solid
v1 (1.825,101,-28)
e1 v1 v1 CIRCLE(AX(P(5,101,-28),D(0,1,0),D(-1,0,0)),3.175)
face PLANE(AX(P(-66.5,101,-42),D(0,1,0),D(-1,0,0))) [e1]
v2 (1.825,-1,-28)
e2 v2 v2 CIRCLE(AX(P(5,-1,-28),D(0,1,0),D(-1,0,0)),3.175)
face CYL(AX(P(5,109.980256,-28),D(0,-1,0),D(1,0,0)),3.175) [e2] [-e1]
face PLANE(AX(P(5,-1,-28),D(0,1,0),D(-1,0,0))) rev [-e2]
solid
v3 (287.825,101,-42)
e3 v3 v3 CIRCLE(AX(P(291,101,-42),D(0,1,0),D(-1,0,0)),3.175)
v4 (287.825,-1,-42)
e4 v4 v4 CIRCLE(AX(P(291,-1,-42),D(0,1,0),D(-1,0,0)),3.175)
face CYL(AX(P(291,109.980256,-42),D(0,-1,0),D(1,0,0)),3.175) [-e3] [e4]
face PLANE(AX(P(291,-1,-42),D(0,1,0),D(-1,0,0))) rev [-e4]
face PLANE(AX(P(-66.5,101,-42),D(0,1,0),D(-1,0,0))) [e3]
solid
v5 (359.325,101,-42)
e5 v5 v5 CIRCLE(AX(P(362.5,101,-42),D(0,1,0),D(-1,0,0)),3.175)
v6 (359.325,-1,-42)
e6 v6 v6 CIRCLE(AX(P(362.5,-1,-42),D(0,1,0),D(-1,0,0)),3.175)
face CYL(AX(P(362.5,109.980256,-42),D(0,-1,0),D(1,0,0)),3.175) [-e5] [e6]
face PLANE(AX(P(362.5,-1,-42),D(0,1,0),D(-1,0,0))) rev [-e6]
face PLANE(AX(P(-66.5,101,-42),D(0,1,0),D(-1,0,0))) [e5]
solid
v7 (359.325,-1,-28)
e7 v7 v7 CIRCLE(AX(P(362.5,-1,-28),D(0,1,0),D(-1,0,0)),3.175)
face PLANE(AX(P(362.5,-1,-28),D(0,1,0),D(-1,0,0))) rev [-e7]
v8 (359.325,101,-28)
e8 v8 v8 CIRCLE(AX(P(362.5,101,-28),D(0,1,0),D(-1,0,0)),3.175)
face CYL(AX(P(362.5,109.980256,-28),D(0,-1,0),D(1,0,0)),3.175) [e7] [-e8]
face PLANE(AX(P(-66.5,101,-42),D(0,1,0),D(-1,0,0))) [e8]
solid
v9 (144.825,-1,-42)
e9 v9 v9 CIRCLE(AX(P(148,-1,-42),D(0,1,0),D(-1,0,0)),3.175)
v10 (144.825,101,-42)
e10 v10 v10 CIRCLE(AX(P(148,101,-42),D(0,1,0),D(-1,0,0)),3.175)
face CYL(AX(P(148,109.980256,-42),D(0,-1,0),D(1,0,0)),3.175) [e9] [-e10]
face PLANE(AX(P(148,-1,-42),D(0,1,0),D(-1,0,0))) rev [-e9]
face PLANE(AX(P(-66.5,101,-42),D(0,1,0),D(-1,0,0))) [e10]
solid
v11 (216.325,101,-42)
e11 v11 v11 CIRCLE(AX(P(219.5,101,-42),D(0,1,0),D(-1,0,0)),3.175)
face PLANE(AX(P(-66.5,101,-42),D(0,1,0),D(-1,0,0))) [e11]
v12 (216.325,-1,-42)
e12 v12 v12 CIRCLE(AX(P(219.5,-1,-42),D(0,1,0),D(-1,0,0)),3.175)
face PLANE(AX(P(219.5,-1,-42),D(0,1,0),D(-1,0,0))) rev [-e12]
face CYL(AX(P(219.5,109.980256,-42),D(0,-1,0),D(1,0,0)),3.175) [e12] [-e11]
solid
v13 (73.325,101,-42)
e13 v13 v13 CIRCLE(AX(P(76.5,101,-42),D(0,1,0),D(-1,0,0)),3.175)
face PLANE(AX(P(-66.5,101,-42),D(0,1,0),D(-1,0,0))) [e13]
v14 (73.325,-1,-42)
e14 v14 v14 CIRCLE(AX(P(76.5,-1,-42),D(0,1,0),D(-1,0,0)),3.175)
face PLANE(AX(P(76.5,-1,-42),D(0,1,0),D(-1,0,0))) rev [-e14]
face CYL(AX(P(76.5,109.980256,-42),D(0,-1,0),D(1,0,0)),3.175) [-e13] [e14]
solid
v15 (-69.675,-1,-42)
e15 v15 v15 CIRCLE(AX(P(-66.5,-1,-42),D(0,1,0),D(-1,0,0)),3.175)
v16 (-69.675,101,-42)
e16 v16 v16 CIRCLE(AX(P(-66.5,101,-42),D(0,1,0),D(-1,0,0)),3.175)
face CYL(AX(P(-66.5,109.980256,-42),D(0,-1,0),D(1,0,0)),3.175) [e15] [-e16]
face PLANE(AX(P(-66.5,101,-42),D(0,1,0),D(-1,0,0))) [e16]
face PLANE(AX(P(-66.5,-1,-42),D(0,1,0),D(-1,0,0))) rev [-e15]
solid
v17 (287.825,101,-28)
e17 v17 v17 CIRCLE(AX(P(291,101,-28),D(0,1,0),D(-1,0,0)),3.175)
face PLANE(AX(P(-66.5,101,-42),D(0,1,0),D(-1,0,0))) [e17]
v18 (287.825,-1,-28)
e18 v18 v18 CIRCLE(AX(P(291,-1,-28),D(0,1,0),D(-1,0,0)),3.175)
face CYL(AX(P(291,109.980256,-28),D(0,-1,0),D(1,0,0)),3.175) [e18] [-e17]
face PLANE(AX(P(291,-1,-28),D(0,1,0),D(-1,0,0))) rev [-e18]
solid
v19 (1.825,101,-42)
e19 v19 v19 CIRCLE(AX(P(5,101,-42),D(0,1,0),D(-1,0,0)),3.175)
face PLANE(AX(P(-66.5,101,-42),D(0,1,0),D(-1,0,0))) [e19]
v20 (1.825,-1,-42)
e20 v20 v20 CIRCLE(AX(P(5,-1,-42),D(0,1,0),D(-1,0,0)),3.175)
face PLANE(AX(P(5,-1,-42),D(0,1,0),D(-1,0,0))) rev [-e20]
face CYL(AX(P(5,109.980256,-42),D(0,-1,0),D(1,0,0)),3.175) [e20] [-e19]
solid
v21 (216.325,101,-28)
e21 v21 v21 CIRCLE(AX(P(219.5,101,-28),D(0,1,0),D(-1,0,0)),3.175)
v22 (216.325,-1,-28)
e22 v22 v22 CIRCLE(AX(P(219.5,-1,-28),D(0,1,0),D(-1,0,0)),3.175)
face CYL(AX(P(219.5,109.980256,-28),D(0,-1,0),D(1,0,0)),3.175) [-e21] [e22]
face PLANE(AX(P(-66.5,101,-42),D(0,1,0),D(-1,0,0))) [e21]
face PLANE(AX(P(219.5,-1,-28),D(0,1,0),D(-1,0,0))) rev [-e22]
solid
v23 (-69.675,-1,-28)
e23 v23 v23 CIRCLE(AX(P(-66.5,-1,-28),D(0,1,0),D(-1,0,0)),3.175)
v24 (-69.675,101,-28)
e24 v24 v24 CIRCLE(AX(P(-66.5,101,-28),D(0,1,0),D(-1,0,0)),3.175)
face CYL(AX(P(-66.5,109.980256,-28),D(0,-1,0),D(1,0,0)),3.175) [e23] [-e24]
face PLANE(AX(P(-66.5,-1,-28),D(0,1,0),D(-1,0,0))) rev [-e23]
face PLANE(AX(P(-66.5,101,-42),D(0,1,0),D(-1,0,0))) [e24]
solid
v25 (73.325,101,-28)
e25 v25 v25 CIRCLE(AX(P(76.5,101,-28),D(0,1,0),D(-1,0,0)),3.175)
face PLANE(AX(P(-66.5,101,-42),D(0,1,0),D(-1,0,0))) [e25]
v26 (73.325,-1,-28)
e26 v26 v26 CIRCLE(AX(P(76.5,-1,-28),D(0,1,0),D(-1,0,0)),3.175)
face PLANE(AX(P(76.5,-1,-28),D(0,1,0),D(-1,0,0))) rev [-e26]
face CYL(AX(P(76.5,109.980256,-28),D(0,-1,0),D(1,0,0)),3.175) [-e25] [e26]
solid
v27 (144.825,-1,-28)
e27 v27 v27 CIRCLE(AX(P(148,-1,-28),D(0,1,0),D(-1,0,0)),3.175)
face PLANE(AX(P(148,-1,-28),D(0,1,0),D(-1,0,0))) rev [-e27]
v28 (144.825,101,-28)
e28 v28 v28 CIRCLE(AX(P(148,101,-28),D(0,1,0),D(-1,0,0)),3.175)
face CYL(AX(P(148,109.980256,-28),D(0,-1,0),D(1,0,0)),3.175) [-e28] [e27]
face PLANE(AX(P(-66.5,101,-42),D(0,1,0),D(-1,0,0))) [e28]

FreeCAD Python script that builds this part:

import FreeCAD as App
import Part
import Sketcher
from FreeCAD import Vector
Q = App.Units.Quantity

doc = App.newDocument("Part")
body = doc.addObject("PartDesign::Body", "Body")

# Sketch on XZ plane
sketch1 = doc.addObject("Sketcher::SketchObject", "Sketch")
body.addObject(sketch1)
sketch1.AttachmentSupport = (doc.XZ_Plane, [""])
sketch1.MapMode = "FlatFace"
sketch1.AttachmentOffset = App.Placement(Vector(0, 0, 1), App.Rotation())
sketch1.addGeometry(Part.Circle(Vector(-66.5, -42, 0), Vector(0, 0, 1), 3.175), False)
sketch1.addConstraint(Sketcher.Constraint("Diameter", 0, Q("6.35 mm")))
sketch1.addConstraint(Sketcher.Constraint("DistanceY", 0, 3, -1, 1, Q("42 mm")))
sketch1.addConstraint(Sketcher.Constraint("DistanceX", 0, 3, -1, 1, Q("66.5 mm")))
pad1 = doc.addObject("PartDesign::Pad", "Pad")
body.addObject(pad1)
pad1.Profile = sketch1
pad1.Length = 102
pad1.Reversed = True
body2 = doc.addObject("PartDesign::Body", "Body001")

# Sketch on XZ plane
sketch2 = doc.addObject("Sketcher::SketchObject", "Sketch001")
body2.addObject(sketch2)
sketch2.AttachmentSupport = (doc.getObject("XZ_Plane001"), [""])
sketch2.MapMode = "FlatFace"
sketch2.AttachmentOffset = App.Placement(Vector(0, 0, 1), App.Rotation())
sketch2.addGeometry(Part.Circle(Vector(-66.5, -28, 0), Vector(0, 0, 1), 3.175), False)
sketch2.addConstraint(Sketcher.Constraint("Diameter", 0, Q("6.35 mm")))
sketch2.addConstraint(Sketcher.Constraint("DistanceY", 0, 3, -1, 1, Q("28 mm")))
sketch2.addConstraint(Sketcher.Constraint("DistanceX", 0, 3, -1, 1, Q("66.5 mm")))
pad2 = doc.addObject("PartDesign::Pad", "Pad001")
body2.addObject(pad2)
pad2.Profile = sketch2
pad2.Length = 102
pad2.Reversed = True
body3 = doc.addObject("PartDesign::Body", "Body002")

# Sketch on XZ plane
sketch3 = doc.addObject("Sketcher::SketchObject", "Sketch002")
body3.addObject(sketch3)
sketch3.AttachmentSupport = (doc.getObject("XZ_Plane002"), [""])
sketch3.MapMode = "FlatFace"
sketch3.AttachmentOffset = App.Placement(Vector(0, 0, 1), App.Rotation())
sketch3.addGeometry(Part.Circle(Vector(5, -42, 0), Vector(0, 0, 1), 3.175), False)
sketch3.addConstraint(Sketcher.Constraint("Diameter", 0, Q("6.35 mm")))
sketch3.addConstraint(Sketcher.Constraint("DistanceX", -1, 1, 0, 3, Q("5 mm")))
sketch3.addConstraint(Sketcher.Constraint("DistanceY", 0, 3, -1, 1, Q("42 mm")))
pad3 = doc.addObject("PartDesign::Pad", "Pad002")
body3.addObject(pad3)
pad3.Profile = sketch3
pad3.Length = 102
pad3.Reversed = True
body4 = doc.addObject("PartDesign::Body", "Body003")

# Sketch on XZ plane
sketch4 = doc.addObject("Sketcher::SketchObject", "Sketch003")
body4.addObject(sketch4)
sketch4.AttachmentSupport = (doc.getObject("XZ_Plane003"), [""])
sketch4.MapMode = "FlatFace"
sketch4.AttachmentOffset = App.Placement(Vector(0, 0, 1), App.Rotation())
sketch4.addGeometry(Part.Circle(Vector(5, -28, 0), Vector(0, 0, 1), 3.175), False)
sketch4.addConstraint(Sketcher.Constraint("Diameter", 0, Q("6.35 mm")))
sketch4.addConstraint(Sketcher.Constraint("DistanceX", -1, 1, 0, 3, Q("5 mm")))
sketch4.addConstraint(Sketcher.Constraint("DistanceY", 0, 3, -1, 1, Q("28 mm")))
pad4 = doc.addObject("PartDesign::Pad", "Pad003")
body4.addObject(pad4)
pad4.Profile = sketch4
pad4.Length = 102
pad4.Reversed = True
body5 = doc.addObject("PartDesign::Body", "Body004")

# Sketch on XZ plane
sketch5 = doc.addObject("Sketcher::SketchObject", "Sketch004")
body5.addObject(sketch5)
sketch5.AttachmentSupport = (doc.getObject("XZ_Plane004"), [""])
sketch5.MapMode = "FlatFace"
sketch5.AttachmentOffset = App.Placement(Vector(0, 0, 1), App.Rotation())
sketch5.addGeometry(Part.Circle(Vector(76.5, -42, 0), Vector(0, 0, 1), 3.175), False)
sketch5.addConstraint(Sketcher.Constraint("Diameter", 0, Q("6.35 mm")))
sketch5.addConstraint(Sketcher.Constraint("DistanceY", 0, 3, -1, 1, Q("42 mm")))
sketch5.addConstraint(Sketcher.Constraint("DistanceX", -1, 1, 0, 3, Q("76.5 mm")))
pad5 = doc.addObject("PartDesign::Pad", "Pad004")
body5.addObject(pad5)
pad5.Profile = sketch5
pad5.Length = 102
pad5.Reversed = True
body6 = doc.addObject("PartDesign::Body", "Body005")

# Sketch on XZ plane
sketch6 = doc.addObject("Sketcher::SketchObject", "Sketch005")
body6.addObject(sketch6)
sketch6.AttachmentSupport = (doc.getObject("XZ_Plane005"), [""])
sketch6.MapMode = "FlatFace"
sketch6.AttachmentOffset = App.Placement(Vector(0, 0, 1), App.Rotation())
sketch6.addGeometry(Part.Circle(Vector(76.5, -28, 0), Vector(0, 0, 1), 3.175), False)
sketch6.addConstraint(Sketcher.Constraint("Diameter", 0, Q("6.35 mm")))
sketch6.addConstraint(Sketcher.Constraint("DistanceY", 0, 3, -1, 1, Q("28 mm")))
sketch6.addConstraint(Sketcher.Constraint("DistanceX", -1, 1, 0, 3, Q("76.5 mm")))
pad6 = doc.addObject("PartDesign::Pad", "Pad005")
body6.addObject(pad6)
pad6.Profile = sketch6
pad6.Length = 102
pad6.Reversed = True
body7 = doc.addObject("PartDesign::Body", "Body006")

# Sketch on XZ plane
sketch7 = doc.addObject("Sketcher::SketchObject", "Sketch006")
body7.addObject(sketch7)
sketch7.AttachmentSupport = (doc.getObject("XZ_Plane006"), [""])
sketch7.MapMode = "FlatFace"
sketch7.AttachmentOffset = App.Placement(Vector(0, 0, 1), App.Rotation())
sketch7.addGeometry(Part.Circle(Vector(148, -42, 0), Vector(0, 0, 1), 3.175), False)
sketch7.addConstraint(Sketcher.Constraint("Diameter", 0, Q("6.35 mm")))
sketch7.addConstraint(Sketcher.Constraint("DistanceX", -1, 1, 0, 3, Q("148 mm")))
sketch7.addConstraint(Sketcher.Constraint("DistanceY", 0, 3, -1, 1, Q("42 mm")))
pad7 = doc.addObject("PartDesign::Pad", "Pad006")
body7.addObject(pad7)
pad7.Profile = sketch7
pad7.Length = 102
pad7.Reversed = True
body8 = doc.addObject("PartDesign::Body", "Body007")

# Sketch on XZ plane
sketch8 = doc.addObject("Sketcher::SketchObject", "Sketch007")
body8.addObject(sketch8)
sketch8.AttachmentSupport = (doc.getObject("XZ_Plane007"), [""])
sketch8.MapMode = "FlatFace"
sketch8.AttachmentOffset = App.Placement(Vector(0, 0, 1), App.Rotation())
sketch8.addGeometry(Part.Circle(Vector(148, -28, 0), Vector(0, 0, 1), 3.175), False)
sketch8.addConstraint(Sketcher.Constraint("Diameter", 0, Q("6.35 mm")))
sketch8.addConstraint(Sketcher.Constraint("DistanceX", -1, 1, 0, 3, Q("148 mm")))
sketch8.addConstraint(Sketcher.Constraint("DistanceY", 0, 3, -1, 1, Q("28 mm")))
pad8 = doc.addObject("PartDesign::Pad", "Pad007")
body8.addObject(pad8)
pad8.Profile = sketch8
pad8.Length = 102
pad8.Reversed = True
body9 = doc.addObject("PartDesign::Body", "Body008")

# Sketch on XZ plane
sketch9 = doc.addObject("Sketcher::SketchObject", "Sketch008")
body9.addObject(sketch9)
sketch9.AttachmentSupport = (doc.getObject("XZ_Plane008"), [""])
sketch9.MapMode = "FlatFace"
sketch9.AttachmentOffset = App.Placement(Vector(0, 0, 1), App.Rotation())
sketch9.addGeometry(Part.Circle(Vector(219.5, -42, 0), Vector(0, 0, 1), 3.175), False)
sketch9.addConstraint(Sketcher.Constraint("Diameter", 0, Q("6.35 mm")))
sketch9.addConstraint(Sketcher.Constraint("DistanceY", 0, 3, -1, 1, Q("42 mm")))
sketch9.addConstraint(Sketcher.Constraint("DistanceX", -1, 1, 0, 3, Q("219.5 mm")))
pad9 = doc.addObject("PartDesign::Pad", "Pad008")
body9.addObject(pad9)
pad9.Profile = sketch9
pad9.Length = 102
pad9.Reversed = True
body10 = doc.addObject("PartDesign::Body", "Body009")

# Sketch on XZ plane
sketch10 = doc.addObject("Sketcher::SketchObject", "Sketch009")
body10.addObject(sketch10)
sketch10.AttachmentSupport = (doc.getObject("XZ_Plane009"), [""])
sketch10.MapMode = "FlatFace"
sketch10.AttachmentOffset = App.Placement(Vector(0, 0, 1), App.Rotation())
sketch10.addGeometry(Part.Circle(Vector(219.5, -28, 0), Vector(0, 0, 1), 3.175), False)
sketch10.addConstraint(Sketcher.Constraint("Diameter", 0, Q("6.35 mm")))
sketch10.addConstraint(Sketcher.Constraint("DistanceY", 0, 3, -1, 1, Q("28 mm")))
sketch10.addConstraint(Sketcher.Constraint("DistanceX", -1, 1, 0, 3, Q("219.5 mm")))
pad10 = doc.addObject("PartDesign::Pad", "Pad009")
body10.addObject(pad10)
pad10.Profile = sketch10
pad10.Length = 102
pad10.Reversed = True
body11 = doc.addObject("PartDesign::Body", "Body010")

# Sketch on XZ plane
sketch11 = doc.addObject("Sketcher::SketchObject", "Sketch010")
body11.addObject(sketch11)
sketch11.AttachmentSupport = (doc.getObject("XZ_Plane010"), [""])
sketch11.MapMode = "FlatFace"
sketch11.AttachmentOffset = App.Placement(Vector(0, 0, 1), App.Rotation())
sketch11.addGeometry(Part.Circle(Vector(291, -42, 0), Vector(0, 0, 1), 3.175), False)
sketch11.addConstraint(Sketcher.Constraint("Diameter", 0, Q("6.35 mm")))
sketch11.addConstraint(Sketcher.Constraint("DistanceX", -1, 1, 0, 3, Q("291 mm")))
sketch11.addConstraint(Sketcher.Constraint("DistanceY", 0, 3, -1, 1, Q("42 mm")))
pad11 = doc.addObject("PartDesign::Pad", "Pad010")
body11.addObject(pad11)
pad11.Profile = sketch11
pad11.Length = 102
pad11.Reversed = True
body12 = doc.addObject("PartDesign::Body", "Body011")

# Sketch on XZ plane
sketch12 = doc.addObject("Sketcher::SketchObject", "Sketch011")
body12.addObject(sketch12)
sketch12.AttachmentSupport = (doc.getObject("XZ_Plane011"), [""])
sketch12.MapMode = "FlatFace"
sketch12.AttachmentOffset = App.Placement(Vector(0, 0, 1), App.Rotation())
sketch12.addGeometry(Part.Circle(Vector(291, -28, 0), Vector(0, 0, 1), 3.175), False)
sketch12.addConstraint(Sketcher.Constraint("Diameter", 0, Q("6.35 mm")))
sketch12.addConstraint(Sketcher.Constraint("DistanceX", -1, 1, 0, 3, Q("291 mm")))
sketch12.addConstraint(Sketcher.Constraint("DistanceY", 0, 3, -1, 1, Q("28 mm")))
pad12 = doc.addObject("PartDesign::Pad", "Pad011")
body12.addObject(pad12)
pad12.Profile = sketch12
pad12.Length = 102
pad12.Reversed = True
body13 = doc.addObject("PartDesign::Body", "Body012")

# Sketch on XZ plane
sketch13 = doc.addObject("Sketcher::SketchObject", "Sketch012")
body13.addObject(sketch13)
sketch13.AttachmentSupport = (doc.getObject("XZ_Plane012"), [""])
sketch13.MapMode = "FlatFace"
sketch13.AttachmentOffset = App.Placement(Vector(0, 0, 1), App.Rotation())
sketch13.addGeometry(Part.Circle(Vector(362.5, -42, 0), Vector(0, 0, 1), 3.175), False)
sketch13.addConstraint(Sketcher.Constraint("Diameter", 0, Q("6.35 mm")))
sketch13.addConstraint(Sketcher.Constraint("DistanceY", 0, 3, -1, 1, Q("42 mm")))
sketch13.addConstraint(Sketcher.Constraint("DistanceX", -1, 1, 0, 3, Q("362.5 mm")))
pad13 = doc.addObject("PartDesign::Pad", "Pad012")
body13.addObject(pad13)
pad13.Profile = sketch13
pad13.Length = 102
pad13.Reversed = True
body14 = doc.addObject("PartDesign::Body", "Body013")

# Sketch on XZ plane
sketch14 = doc.addObject("Sketcher::SketchObject", "Sketch013")
body14.addObject(sketch14)
sketch14.AttachmentSupport = (doc.getObject("XZ_Plane013"), [""])
sketch14.MapMode = "FlatFace"
sketch14.AttachmentOffset = App.Placement(Vector(0, 0, 1), App.Rotation())
sketch14.addGeometry(Part.Circle(Vector(362.5, -28, 0), Vector(0, 0, 1), 3.175), False)
sketch14.addConstraint(Sketcher.Constraint("Diameter", 0, Q("6.35 mm")))
sketch14.addConstraint(Sketcher.Constraint("DistanceY", 0, 3, -1, 1, Q("28 mm")))
sketch14.addConstraint(Sketcher.Constraint("DistanceX", -1, 1, 0, 3, Q("362.5 mm")))
pad14 = doc.addObject("PartDesign::Pad", "Pad013")
body14.addObject(pad14)
pad14.Profile = sketch14
pad14.Length = 102
pad14.Reversed = True

doc.recompute()
